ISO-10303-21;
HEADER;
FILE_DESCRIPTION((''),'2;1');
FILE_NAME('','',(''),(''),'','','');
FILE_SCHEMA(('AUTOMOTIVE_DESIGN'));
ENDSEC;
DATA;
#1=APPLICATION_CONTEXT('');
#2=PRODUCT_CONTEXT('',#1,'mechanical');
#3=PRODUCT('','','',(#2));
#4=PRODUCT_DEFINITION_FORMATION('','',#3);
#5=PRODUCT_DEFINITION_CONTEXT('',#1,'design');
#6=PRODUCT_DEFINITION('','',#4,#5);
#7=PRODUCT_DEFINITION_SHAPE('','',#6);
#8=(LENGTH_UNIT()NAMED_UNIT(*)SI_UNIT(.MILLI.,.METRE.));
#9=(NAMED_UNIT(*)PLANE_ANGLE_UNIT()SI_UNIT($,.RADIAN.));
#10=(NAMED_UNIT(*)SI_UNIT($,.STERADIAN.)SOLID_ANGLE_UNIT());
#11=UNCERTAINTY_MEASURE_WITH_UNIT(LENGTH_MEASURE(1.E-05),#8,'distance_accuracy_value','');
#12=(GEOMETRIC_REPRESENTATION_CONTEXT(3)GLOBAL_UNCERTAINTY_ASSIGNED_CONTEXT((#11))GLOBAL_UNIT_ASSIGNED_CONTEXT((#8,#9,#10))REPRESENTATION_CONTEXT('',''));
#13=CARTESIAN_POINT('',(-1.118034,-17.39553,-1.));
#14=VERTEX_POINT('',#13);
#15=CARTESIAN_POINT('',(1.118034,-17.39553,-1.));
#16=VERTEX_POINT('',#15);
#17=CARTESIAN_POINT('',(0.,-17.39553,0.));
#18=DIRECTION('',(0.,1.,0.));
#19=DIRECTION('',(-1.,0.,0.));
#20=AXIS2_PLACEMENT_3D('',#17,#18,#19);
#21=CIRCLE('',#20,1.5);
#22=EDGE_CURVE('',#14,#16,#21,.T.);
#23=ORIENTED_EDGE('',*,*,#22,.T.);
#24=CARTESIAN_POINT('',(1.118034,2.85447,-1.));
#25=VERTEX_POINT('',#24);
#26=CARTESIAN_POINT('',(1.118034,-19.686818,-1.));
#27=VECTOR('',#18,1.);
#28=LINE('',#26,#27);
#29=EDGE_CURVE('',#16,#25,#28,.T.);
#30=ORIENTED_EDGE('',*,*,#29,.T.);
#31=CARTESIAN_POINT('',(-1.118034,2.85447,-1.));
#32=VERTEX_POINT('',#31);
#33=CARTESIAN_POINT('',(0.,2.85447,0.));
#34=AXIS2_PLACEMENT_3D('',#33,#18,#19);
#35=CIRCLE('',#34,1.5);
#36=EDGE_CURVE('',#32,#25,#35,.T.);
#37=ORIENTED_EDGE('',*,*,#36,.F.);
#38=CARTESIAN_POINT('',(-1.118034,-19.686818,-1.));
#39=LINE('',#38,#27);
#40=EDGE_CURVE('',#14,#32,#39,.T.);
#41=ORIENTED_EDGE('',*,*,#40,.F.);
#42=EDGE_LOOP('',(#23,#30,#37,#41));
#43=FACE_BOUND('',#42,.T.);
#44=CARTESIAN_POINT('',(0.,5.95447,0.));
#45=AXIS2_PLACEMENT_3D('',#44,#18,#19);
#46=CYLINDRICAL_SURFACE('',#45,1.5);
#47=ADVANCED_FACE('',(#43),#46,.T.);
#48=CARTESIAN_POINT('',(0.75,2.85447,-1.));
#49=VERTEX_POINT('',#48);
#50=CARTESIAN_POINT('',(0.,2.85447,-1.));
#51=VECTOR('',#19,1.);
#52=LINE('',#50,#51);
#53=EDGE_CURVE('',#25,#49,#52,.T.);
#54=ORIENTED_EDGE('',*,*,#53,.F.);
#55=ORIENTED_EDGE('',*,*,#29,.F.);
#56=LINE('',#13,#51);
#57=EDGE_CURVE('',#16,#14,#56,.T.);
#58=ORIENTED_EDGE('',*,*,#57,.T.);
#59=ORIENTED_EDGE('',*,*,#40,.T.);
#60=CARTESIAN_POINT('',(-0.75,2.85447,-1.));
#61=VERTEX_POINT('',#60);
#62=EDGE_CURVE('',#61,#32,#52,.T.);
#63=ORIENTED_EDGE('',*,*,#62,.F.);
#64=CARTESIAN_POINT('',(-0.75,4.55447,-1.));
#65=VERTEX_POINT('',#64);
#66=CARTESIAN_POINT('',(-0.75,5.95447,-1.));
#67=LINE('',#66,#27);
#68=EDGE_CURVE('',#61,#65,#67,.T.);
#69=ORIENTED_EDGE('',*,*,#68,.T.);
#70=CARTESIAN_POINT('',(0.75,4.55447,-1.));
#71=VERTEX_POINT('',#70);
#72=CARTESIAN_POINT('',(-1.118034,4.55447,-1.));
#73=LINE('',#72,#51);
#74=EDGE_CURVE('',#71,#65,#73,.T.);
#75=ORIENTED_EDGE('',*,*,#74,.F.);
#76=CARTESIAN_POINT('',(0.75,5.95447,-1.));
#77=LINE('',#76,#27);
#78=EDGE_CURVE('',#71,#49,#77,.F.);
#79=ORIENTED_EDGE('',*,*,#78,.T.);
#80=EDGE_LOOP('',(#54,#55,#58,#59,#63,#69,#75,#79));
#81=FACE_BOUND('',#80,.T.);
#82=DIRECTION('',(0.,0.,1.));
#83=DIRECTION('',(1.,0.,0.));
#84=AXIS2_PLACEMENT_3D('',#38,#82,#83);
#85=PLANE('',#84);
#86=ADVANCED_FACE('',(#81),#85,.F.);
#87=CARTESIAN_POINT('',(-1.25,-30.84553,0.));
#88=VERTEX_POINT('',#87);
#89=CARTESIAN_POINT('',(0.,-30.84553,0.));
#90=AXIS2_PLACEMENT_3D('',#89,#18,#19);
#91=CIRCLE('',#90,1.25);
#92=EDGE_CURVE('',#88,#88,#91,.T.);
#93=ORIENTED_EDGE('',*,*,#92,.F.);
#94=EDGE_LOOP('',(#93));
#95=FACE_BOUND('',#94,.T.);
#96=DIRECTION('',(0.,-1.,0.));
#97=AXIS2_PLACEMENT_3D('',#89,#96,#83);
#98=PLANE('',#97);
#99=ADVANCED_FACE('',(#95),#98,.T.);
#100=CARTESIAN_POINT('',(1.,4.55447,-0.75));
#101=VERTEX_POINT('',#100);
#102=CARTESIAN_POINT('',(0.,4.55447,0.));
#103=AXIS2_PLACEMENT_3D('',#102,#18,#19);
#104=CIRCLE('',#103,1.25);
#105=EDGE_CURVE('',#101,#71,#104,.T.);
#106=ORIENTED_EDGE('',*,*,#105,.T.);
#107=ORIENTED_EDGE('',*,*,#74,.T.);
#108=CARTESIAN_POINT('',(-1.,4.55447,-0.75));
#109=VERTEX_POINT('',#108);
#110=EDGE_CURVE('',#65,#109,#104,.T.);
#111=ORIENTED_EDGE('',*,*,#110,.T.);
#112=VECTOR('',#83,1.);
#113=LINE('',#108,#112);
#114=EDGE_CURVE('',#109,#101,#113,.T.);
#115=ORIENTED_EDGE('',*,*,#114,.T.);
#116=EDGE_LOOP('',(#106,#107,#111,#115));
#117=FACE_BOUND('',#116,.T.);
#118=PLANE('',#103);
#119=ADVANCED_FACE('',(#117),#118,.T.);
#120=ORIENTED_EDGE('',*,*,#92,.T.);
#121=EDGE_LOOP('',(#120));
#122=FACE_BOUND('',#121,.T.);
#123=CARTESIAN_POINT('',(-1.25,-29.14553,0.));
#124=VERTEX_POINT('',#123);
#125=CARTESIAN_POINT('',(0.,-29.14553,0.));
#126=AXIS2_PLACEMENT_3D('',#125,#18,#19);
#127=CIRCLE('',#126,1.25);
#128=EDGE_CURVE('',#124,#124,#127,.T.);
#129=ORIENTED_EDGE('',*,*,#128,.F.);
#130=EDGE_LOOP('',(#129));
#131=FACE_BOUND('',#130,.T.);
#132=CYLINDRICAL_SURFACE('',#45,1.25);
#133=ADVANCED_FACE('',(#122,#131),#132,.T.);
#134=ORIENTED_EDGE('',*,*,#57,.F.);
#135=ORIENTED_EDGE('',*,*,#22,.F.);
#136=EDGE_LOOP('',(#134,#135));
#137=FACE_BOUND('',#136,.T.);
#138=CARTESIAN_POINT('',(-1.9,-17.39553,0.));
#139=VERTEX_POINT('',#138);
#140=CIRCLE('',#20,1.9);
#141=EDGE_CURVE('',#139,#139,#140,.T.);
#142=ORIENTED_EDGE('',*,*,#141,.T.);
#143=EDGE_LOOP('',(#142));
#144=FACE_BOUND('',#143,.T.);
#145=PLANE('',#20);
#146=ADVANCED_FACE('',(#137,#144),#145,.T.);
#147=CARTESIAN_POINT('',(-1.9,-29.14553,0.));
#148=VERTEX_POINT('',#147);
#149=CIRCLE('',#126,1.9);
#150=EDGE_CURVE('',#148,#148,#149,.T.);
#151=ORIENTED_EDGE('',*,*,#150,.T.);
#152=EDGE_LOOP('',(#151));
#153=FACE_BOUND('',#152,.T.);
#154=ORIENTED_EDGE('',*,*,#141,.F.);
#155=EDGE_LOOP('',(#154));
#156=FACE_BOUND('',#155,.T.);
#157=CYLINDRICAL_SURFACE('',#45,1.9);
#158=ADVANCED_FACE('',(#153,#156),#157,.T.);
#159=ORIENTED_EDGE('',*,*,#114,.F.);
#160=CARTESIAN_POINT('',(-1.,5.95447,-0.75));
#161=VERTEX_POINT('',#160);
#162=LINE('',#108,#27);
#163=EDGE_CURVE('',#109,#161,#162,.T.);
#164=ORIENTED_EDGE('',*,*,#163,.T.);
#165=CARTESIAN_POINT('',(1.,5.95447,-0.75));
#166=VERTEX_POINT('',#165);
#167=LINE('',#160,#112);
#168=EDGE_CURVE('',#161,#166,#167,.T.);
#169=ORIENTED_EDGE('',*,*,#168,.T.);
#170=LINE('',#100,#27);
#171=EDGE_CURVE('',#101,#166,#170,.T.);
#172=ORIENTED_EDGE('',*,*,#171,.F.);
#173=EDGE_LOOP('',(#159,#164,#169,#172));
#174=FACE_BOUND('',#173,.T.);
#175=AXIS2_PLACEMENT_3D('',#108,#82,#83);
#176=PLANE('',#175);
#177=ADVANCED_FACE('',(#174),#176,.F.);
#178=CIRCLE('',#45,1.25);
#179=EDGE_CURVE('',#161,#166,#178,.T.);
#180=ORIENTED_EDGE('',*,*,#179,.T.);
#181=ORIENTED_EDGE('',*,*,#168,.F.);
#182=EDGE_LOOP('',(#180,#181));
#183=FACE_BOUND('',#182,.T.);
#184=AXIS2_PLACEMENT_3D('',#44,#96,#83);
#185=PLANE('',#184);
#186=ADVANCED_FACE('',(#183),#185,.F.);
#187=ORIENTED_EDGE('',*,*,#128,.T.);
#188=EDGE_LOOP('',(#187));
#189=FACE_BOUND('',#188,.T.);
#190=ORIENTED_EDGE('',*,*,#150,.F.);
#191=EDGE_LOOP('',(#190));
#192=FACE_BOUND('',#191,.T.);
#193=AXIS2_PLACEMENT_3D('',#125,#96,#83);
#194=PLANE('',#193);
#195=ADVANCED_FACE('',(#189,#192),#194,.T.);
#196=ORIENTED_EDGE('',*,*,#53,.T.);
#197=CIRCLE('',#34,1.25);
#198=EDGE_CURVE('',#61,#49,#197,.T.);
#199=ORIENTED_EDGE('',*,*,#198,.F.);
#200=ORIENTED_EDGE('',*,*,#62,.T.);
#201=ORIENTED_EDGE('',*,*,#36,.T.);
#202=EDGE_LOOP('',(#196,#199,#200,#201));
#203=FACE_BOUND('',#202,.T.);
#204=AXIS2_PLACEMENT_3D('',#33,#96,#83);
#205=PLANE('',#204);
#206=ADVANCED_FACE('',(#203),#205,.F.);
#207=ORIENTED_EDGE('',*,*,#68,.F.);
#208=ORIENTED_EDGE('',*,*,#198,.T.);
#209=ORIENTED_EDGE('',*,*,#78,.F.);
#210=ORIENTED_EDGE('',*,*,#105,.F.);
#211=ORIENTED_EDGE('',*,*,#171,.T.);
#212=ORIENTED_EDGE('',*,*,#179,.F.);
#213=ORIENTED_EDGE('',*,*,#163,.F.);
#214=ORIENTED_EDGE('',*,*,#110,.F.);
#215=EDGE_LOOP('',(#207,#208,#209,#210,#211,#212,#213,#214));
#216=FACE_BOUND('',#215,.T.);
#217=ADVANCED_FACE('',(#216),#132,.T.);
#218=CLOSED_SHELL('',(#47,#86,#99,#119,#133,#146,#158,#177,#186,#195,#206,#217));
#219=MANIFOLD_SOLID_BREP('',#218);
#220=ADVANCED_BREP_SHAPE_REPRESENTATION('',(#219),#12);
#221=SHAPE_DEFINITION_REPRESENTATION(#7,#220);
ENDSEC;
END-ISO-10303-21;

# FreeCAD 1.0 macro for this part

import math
import FreeCAD as App
import Part
import Sketcher

V = App.Vector
Q = App.Units.Quantity


def add_polygon(sketch, points):
    """Adds a closed chain of lines whose ends are joined by coincident constraints."""
    first, n = sketch.GeometryCount, len(points)
    for a, b in zip(points, points[1:] + points[:1]):
        sketch.addGeometry(Part.LineSegment(App.Vector(*a, 0), App.Vector(*b, 0)), False)
    for i in range(n):
        sketch.addConstraint(Sketcher.Constraint("Coincident", first + i, 2, first + (i + 1) % n, 1))

doc = App.newDocument("Part")
params = doc.addObject("Spreadsheet::Sheet", "Params")
for row, (alias, value) in enumerate([
    ("sketch1_width", "0.4 mm"),
    ("sketch1_height", "36.8 mm"),
    ("sketch1_height2", "1.7 mm"),
    ("sketch1_height3", "3.1 mm"),
    ("sketch1_width2", "1.25 mm"),
    ("revolution_angle", "360 deg"),
    ("sketch2_radius", "1.5 mm"),
    ("pocket1_length", "23.35 mm"),
    ("sketch3_width", "2 mm"),
    ("sketch3_radius", "1.25 mm"),
    ("pocket2_length", "1.4 mm"),
], start=1):
    params.set(f"A{row}", alias)
    params.set(f"B{row}", "=" + value)
    params.setAlias(f"B{row}", alias)

body = doc.addObject("PartDesign::Body", "Body")

# Sketch on XY plane
sketch1 = body.newObject("Sketcher::SketchObject", "Sketch")
sketch1.AttachmentSupport = (doc.getObject("XY_Plane"), [""])
sketch1.MapMode = "FlatFace"
add_polygon(sketch1, [(1.25, 5.95), (0, 5.95), (0, -30.85), (1.25, -30.85), (1.25, -29.15), (1.9, -29.15), (1.9, -17.4), (1.5, -17.4), (1.5, 2.85), (1.25, 2.85)])  # lines 0-9
sketch1.addConstraint(Sketcher.Constraint("Horizontal", 0))
sketch1.addConstraint(Sketcher.Constraint("Vertical", 1))
sketch1.addConstraint(Sketcher.Constraint("Horizontal", 2))
sketch1.addConstraint(Sketcher.Constraint("Vertical", 3))
sketch1.addConstraint(Sketcher.Constraint("Horizontal", 4))
sketch1.addConstraint(Sketcher.Constraint("Vertical", 5))
sketch1.addConstraint(Sketcher.Constraint("Horizontal", 6))
sketch1.addConstraint(Sketcher.Constraint("Vertical", 7))
sketch1.addConstraint(Sketcher.Constraint("Horizontal", 8))
sketch1.addConstraint(Sketcher.Constraint("Vertical", 9))
sketch1.addConstraint(Sketcher.Constraint("PointOnObject", 0, 2, -2))
sketch1.addConstraint(Sketcher.Constraint("Vertical", 3, 2, 8, 2))
sketch1.addConstraint(Sketcher.Constraint("DistanceX", 6, 2, 6, 1, Q("0.4 mm")))
sketch1.addConstraint(Sketcher.Constraint("DistanceY", 1, 2, 1, 1, Q("36.8 mm")))
sketch1.addConstraint(Sketcher.Constraint("DistanceY", 3, 1, 3, 2, Q("1.7 mm")))
sketch1.addConstraint(Sketcher.Constraint("DistanceY", 9, 1, 9, 2, Q("3.1 mm")))
sketch1.addConstraint(Sketcher.Constraint("DistanceX", 0, 2, 0, 1, Q("1.25 mm")))
sketch1.addConstraint(Sketcher.Constraint("DistanceX", 4, 1, 4, 2, Q("0.65 mm")))
sketch1.addConstraint(Sketcher.Constraint("DistanceY", 5, 1, 5, 2, Q("11.75 mm")))
sketch1.addConstraint(Sketcher.Constraint("DistanceY", -1, 1, 0, 2, Q("5.95447 mm")))
sketch1.setExpression("Constraints[22]", "Params.sketch1_width")
sketch1.setExpression("Constraints[23]", "Params.sketch1_height")
sketch1.setExpression("Constraints[24]", "Params.sketch1_height2")
sketch1.setExpression("Constraints[25]", "Params.sketch1_height3")
sketch1.setExpression("Constraints[26]", "Params.sketch1_width2")
revolution = body.newObject("PartDesign::Revolution", "Revolution")
revolution.Profile = sketch1
revolution.ReferenceAxis = (sketch1, ["V_Axis"])
revolution.setExpression("Angle", "Params.revolution_angle")

# Sketch on XZ plane
sketch2 = body.newObject("Sketcher::SketchObject", "Sketch001")
sketch2.AttachmentSupport = (doc.getObject("XZ_Plane"), [""])
sketch2.MapMode = "FlatFace"
sketch2.AttachmentOffset = App.Placement(V(0, 0, -5.95447), App.Rotation())
sketch2.addGeometry(Part.LineSegment(V(-1.1, -1, 0), V(1.1, -1, 0)), False)
sketch2.addGeometry(Part.ArcOfCircle(Part.Circle(V(0, 0, 0), V(0, 0, 1), 1.5), math.radians(-138), math.radians(-42)), False)
sketch2.addConstraint(Sketcher.Constraint("Coincident", 0, 1, 1, 1))
sketch2.addConstraint(Sketcher.Constraint("Coincident", 1, 2, 0, 2))
sketch2.addConstraint(Sketcher.Constraint("Horizontal", 0))
sketch2.addConstraint(Sketcher.Constraint("Coincident", 1, 3, -1, 1))
sketch2.addConstraint(Sketcher.Constraint("Radius", 1, Q("1.5 mm")))
sketch2.addConstraint(Sketcher.Constraint("DistanceY", 0, 1, -1, 1, Q("1 mm")))
sketch2.setExpression("Constraints[4]", "Params.sketch2_radius")
pocket1 = body.newObject("PartDesign::Pocket", "Pocket")
pocket1.Profile = sketch2
pocket1.setExpression("Length", "Params.pocket1_length")
pocket1.Reversed = True

# Sketch on XZ plane
sketch3 = body.newObject("Sketcher::SketchObject", "Sketch002")
sketch3.AttachmentSupport = (doc.getObject("XZ_Plane"), [""])
sketch3.MapMode = "FlatFace"
sketch3.AttachmentOffset = App.Placement(V(0, 0, -5.95447), App.Rotation())
sketch3.addGeometry(Part.LineSegment(V(-1, -0.8, 0), V(1, -0.8, 0)), False)
sketch3.addGeometry(Part.ArcOfCircle(Part.Circle(V(0, 0, 0), V(0, 0, 1), 1.2), math.radians(-143), math.radians(-37)), False)
sketch3.addConstraint(Sketcher.Constraint("Coincident", 0, 1, 1, 1))
sketch3.addConstraint(Sketcher.Constraint("Coincident", 1, 2, 0, 2))
sketch3.addConstraint(Sketcher.Constraint("Horizontal", 0))
sketch3.addConstraint(Sketcher.Constraint("Coincident", 1, 3, -1, 1))
sketch3.addConstraint(Sketcher.Constraint("DistanceX", 0, 1, 0, 2, Q("2 mm")))
sketch3.addConstraint(Sketcher.Constraint("Radius", 1, Q("1.25 mm")))
sketch3.setExpression("Constraints[4]", "Params.sketch3_width")
sketch3.setExpression("Constraints[5]", "Params.sketch3_radius")
pocket2 = body.newObject("PartDesign::Pocket", "Pocket001")
pocket2.Profile = sketch3
pocket2.setExpression("Length", "Params.pocket2_length")
pocket2.Reversed = True

doc.recompute()
